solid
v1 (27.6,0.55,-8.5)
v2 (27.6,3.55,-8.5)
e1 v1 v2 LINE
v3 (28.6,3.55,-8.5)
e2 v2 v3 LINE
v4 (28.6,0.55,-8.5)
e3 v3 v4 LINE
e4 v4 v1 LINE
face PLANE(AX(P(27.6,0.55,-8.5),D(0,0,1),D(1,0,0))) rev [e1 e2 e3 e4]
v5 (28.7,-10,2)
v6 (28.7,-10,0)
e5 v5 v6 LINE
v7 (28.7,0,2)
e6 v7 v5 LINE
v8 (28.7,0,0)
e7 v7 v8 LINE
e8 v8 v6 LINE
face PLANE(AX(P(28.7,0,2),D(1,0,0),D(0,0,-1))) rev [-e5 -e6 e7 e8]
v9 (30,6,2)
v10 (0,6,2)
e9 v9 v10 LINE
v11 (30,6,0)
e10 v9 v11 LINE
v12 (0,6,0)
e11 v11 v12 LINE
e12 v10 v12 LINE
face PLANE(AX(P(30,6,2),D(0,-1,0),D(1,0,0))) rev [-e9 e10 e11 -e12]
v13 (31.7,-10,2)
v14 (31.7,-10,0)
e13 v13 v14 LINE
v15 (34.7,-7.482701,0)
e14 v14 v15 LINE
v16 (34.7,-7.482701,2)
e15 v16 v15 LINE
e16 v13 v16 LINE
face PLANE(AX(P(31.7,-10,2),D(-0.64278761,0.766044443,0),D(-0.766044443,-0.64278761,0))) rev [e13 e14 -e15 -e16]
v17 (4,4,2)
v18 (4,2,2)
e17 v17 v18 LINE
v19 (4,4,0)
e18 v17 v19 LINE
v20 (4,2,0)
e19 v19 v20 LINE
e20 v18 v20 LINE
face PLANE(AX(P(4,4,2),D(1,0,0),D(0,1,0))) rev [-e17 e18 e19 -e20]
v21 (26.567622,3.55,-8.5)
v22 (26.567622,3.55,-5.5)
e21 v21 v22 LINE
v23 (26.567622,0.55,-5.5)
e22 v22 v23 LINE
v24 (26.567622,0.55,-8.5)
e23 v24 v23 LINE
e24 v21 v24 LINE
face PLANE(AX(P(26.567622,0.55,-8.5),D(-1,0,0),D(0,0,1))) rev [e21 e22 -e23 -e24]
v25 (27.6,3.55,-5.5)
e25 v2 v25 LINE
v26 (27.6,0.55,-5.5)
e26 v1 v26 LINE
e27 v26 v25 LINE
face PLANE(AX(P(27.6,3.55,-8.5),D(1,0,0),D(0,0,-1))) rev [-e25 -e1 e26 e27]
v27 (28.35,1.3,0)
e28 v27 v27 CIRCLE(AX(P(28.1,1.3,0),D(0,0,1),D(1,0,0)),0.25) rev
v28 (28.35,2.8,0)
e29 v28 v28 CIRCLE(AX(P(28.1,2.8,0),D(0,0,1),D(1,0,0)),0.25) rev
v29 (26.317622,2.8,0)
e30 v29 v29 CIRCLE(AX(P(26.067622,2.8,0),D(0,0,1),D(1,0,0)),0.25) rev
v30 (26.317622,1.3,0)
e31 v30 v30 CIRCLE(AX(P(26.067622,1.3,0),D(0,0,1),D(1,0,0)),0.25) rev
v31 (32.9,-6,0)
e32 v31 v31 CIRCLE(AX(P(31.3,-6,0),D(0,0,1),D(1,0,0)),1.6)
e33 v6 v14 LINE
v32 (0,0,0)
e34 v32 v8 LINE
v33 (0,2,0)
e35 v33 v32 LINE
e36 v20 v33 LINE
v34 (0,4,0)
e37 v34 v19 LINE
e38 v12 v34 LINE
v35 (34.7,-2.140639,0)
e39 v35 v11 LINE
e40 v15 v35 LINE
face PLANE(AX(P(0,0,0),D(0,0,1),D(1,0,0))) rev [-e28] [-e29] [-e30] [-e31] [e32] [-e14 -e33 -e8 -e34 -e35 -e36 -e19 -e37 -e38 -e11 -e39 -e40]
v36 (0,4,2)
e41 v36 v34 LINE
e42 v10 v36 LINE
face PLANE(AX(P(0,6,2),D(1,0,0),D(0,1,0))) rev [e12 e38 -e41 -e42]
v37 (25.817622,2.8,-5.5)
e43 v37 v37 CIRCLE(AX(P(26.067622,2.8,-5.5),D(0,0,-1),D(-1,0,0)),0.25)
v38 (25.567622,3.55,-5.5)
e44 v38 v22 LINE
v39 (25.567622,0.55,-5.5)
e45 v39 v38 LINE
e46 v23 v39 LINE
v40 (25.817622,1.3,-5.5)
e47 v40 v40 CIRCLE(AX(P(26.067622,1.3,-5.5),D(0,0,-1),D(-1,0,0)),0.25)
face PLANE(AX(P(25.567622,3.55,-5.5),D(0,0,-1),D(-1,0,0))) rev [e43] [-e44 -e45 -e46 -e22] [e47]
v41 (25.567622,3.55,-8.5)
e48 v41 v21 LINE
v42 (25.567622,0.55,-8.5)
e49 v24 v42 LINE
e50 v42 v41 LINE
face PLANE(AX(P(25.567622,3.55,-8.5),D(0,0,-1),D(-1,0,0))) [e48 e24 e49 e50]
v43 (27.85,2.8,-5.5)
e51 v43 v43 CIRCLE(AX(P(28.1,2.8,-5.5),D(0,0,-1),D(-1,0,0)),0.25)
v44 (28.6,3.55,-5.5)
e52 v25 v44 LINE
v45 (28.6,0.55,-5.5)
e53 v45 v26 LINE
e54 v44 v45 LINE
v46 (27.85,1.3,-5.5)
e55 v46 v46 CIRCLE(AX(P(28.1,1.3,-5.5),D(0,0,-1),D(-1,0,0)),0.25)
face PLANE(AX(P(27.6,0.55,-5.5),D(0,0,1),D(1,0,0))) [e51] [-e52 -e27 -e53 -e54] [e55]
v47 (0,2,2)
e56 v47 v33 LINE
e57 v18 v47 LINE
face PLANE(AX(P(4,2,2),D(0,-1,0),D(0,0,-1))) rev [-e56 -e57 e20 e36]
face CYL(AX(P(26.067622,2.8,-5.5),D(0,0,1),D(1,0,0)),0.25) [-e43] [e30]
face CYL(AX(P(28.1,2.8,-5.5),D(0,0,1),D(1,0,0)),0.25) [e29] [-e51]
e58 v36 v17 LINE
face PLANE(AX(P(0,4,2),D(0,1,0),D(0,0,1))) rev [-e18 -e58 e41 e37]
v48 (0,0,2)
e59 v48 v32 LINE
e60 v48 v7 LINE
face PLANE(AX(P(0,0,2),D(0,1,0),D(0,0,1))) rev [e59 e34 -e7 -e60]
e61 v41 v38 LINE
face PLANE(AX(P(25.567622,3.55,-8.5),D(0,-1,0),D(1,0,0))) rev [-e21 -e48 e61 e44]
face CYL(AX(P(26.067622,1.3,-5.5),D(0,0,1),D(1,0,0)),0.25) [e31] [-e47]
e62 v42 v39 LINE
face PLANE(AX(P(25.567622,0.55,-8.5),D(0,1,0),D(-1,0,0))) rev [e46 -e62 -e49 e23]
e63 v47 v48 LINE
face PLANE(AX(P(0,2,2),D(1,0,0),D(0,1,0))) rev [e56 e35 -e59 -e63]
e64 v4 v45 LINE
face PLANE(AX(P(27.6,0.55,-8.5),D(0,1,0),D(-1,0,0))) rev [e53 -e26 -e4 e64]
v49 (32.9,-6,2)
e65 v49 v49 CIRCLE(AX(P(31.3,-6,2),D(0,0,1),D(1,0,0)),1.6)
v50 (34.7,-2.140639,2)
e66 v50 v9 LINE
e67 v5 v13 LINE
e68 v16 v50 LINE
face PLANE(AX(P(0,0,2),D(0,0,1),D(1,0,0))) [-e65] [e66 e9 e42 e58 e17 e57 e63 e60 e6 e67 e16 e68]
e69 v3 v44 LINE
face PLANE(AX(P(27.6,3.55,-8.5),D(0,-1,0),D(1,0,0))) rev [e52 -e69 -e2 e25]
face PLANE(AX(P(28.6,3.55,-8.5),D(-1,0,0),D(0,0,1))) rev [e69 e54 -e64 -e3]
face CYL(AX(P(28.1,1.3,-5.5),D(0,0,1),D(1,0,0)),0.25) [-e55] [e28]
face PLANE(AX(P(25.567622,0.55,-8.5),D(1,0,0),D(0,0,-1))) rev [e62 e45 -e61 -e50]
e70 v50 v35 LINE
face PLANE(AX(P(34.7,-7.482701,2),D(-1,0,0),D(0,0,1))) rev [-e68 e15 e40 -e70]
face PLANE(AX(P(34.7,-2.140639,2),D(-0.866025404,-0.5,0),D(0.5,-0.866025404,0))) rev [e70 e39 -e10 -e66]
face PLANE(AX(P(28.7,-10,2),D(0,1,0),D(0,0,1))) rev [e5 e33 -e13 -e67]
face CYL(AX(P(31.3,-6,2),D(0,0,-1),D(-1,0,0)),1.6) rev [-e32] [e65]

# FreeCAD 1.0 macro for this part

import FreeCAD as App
import Part
import Sketcher

V = App.Vector
Q = App.Units.Quantity

doc = App.newDocument("Part")
body = doc.addObject("PartDesign::Body", "Body")

# Sketch on XY plane
sketch1 = body.newObject("Sketcher::SketchObject", "Sketch")
sketch1.AttachmentSupport = (doc.getObject("XY_Plane"), [""])
sketch1.MapMode = "FlatFace"
sketch1.addGeometry(Part.LineSegment(V(0, 0, 0), V(28.7, 0, 0)), False)
sketch1.addGeometry(Part.LineSegment(V(28.7, 0, 0), V(28.7, -10, 0)), False)
sketch1.addGeometry(Part.LineSegment(V(28.7, -10, 0), V(31.7, -10, 0)), False)
sketch1.addGeometry(Part.LineSegment(V(31.7, -10, 0), V(34.7, -7.5, 0)), False)
sketch1.addGeometry(Part.LineSegment(V(34.7, -7.5, 0), V(34.7, -2.1, 0)), False)
sketch1.addGeometry(Part.LineSegment(V(34.7, -2.1, 0), V(30, 6, 0)), False)
sketch1.addGeometry(Part.LineSegment(V(30, 6, 0), V(0, 6, 0)), False)
sketch1.addGeometry(Part.LineSegment(V(0, 6, 0), V(0, 4, 0)), False)
sketch1.addGeometry(Part.LineSegment(V(0, 4, 0), V(4, 4, 0)), False)
sketch1.addGeometry(Part.LineSegment(V(4, 4, 0), V(4, 2, 0)), False)
sketch1.addGeometry(Part.LineSegment(V(4, 2, 0), V(0, 2, 0)), False)
sketch1.addGeometry(Part.LineSegment(V(0, 2, 0), V(0, 0, 0)), False)
sketch1.addGeometry(Part.Circle(V(31.3, -6, 0), V(0, 0, 1), 1.6), False)
sketch1.addConstraint(Sketcher.Constraint("Coincident", 0, 2, 1, 1))
sketch1.addConstraint(Sketcher.Constraint("Coincident", 1, 2, 2, 1))
sketch1.addConstraint(Sketcher.Constraint("Coincident", 2, 2, 3, 1))
sketch1.addConstraint(Sketcher.Constraint("Coincident", 3, 2, 4, 1))
sketch1.addConstraint(Sketcher.Constraint("Coincident", 4, 2, 5, 1))
sketch1.addConstraint(Sketcher.Constraint("Coincident", 5, 2, 6, 1))
sketch1.addConstraint(Sketcher.Constraint("Coincident", 6, 2, 7, 1))
sketch1.addConstraint(Sketcher.Constraint("Coincident", 7, 2, 8, 1))
sketch1.addConstraint(Sketcher.Constraint("Coincident", 8, 2, 9, 1))
sketch1.addConstraint(Sketcher.Constraint("Coincident", 9, 2, 10, 1))
sketch1.addConstraint(Sketcher.Constraint("Coincident", 10, 2, 11, 1))
sketch1.addConstraint(Sketcher.Constraint("Coincident", 11, 2, 0, 1))
sketch1.addConstraint(Sketcher.Constraint("Horizontal", 0))
sketch1.addConstraint(Sketcher.Constraint("Vertical", 1))
sketch1.addConstraint(Sketcher.Constraint("Horizontal", 2))
sketch1.addConstraint(Sketcher.Constraint("Vertical", 4))
sketch1.addConstraint(Sketcher.Constraint("Horizontal", 6))
sketch1.addConstraint(Sketcher.Constraint("Vertical", 7))
sketch1.addConstraint(Sketcher.Constraint("Horizontal", 8))
sketch1.addConstraint(Sketcher.Constraint("Vertical", 9))
sketch1.addConstraint(Sketcher.Constraint("Horizontal", 10))
sketch1.addConstraint(Sketcher.Constraint("Vertical", 11))
sketch1.addConstraint(Sketcher.Constraint("Coincident", 11, 2, -1, 1))
sketch1.addConstraint(Sketcher.Constraint("PointOnObject", 6, 2, -2))
sketch1.addConstraint(Sketcher.Constraint("Equal", 7, 9))
sketch1.addConstraint(Sketcher.Constraint("Equal", 9, 11))
sketch1.addConstraint(Sketcher.Constraint("Diameter", 12, Q("3.2 mm")))
sketch1.addConstraint(Sketcher.Constraint("DistanceX", 2, 1, 2, 2, Q("3 mm")))
sketch1.addConstraint(Sketcher.Constraint("DistanceX", 6, 2, 6, 1, Q("30 mm")))
sketch1.addConstraint(Sketcher.Constraint("DistanceX", 8, 1, 8, 2, Q("4 mm")))
sketch1.addConstraint(Sketcher.Constraint("DistanceY", 1, 2, 1, 1, Q("10 mm")))
sketch1.addConstraint(Sketcher.Constraint("DistanceY", 7, 2, 7, 1, Q("2 mm")))
sketch1.addConstraint(Sketcher.Constraint("Angle", 3, Q("40 deg")))
sketch1.addConstraint(Sketcher.Constraint("Angle", 5, Q("120 deg")))
sketch1.addConstraint(Sketcher.Constraint("DistanceX", 0, 1, 0, 2, Q("28.7 mm")))
sketch1.addConstraint(Sketcher.Constraint("DistanceY", 12, 3, -1, 1, Q("6 mm")))
sketch1.addConstraint(Sketcher.Constraint("DistanceX", 2, 2, 3, 2, Q("3 mm")))
sketch1.addConstraint(Sketcher.Constraint("DistanceX", -1, 1, 12, 3, Q("31.3 mm")))
pad1 = body.newObject("PartDesign::Pad", "Pad")
pad1.Profile = sketch1
pad1.Length = 2

# Sketch on XY plane
sketch2 = body.newObject("Sketcher::SketchObject", "Sketch001")
sketch2.AttachmentSupport = (doc.getObject("XY_Plane"), [""])
sketch2.MapMode = "FlatFace"
sketch2.addGeometry(Part.Circle(V(28.1, 1.3, 0), V(0, 0, 1), 0.25), False)
sketch2.addGeometry(Part.Circle(V(28.1, 2.8, 0), V(0, 0, 1), 0.25), False)
sketch2.addGeometry(Part.Circle(V(26.07, 1.3, 0), V(0, 0, 1), 0.25), False)
sketch2.addGeometry(Part.Circle(V(26.07, 2.8, 0), V(0, 0, 1), 0.25), False)
sketch2.addConstraint(Sketcher.Constraint("Equal", 0, 1))
sketch2.addConstraint(Sketcher.Constraint("Equal", 1, 2))
sketch2.addConstraint(Sketcher.Constraint("Equal", 2, 3))
sketch2.addConstraint(Sketcher.Constraint("Horizontal", 0, 3, 2, 3))
sketch2.addConstraint(Sketcher.Constraint("Horizontal", 1, 3, 3, 3))
sketch2.addConstraint(Sketcher.Constraint("Vertical", 0, 3, 1, 3))
sketch2.addConstraint(Sketcher.Constraint("Vertical", 2, 3, 3, 3))
sketch2.addConstraint(Sketcher.Constraint("Diameter", 0, Q("0.5 mm")))
sketch2.addConstraint(Sketcher.Constraint("DistanceX", -1, 1, 0, 3, Q("28.1 mm")))
sketch2.addConstraint(Sketcher.Constraint("DistanceY", -1, 1, 0, 3, Q("1.3 mm")))
sketch2.addConstraint(Sketcher.Constraint("DistanceY", -1, 1, 1, 3, Q("2.8 mm")))
sketch2.addConstraint(Sketcher.Constraint("DistanceX", -1, 1, 2, 3, Q("26.067622 mm")))
pad2 = body.newObject("PartDesign::Pad", "Pad001")
pad2.Profile = sketch2
pad2.Length = 5.5
pad2.Reversed = True

# Sketch on XY plane
sketch3 = body.newObject("Sketcher::SketchObject", "Sketch002")
sketch3.AttachmentSupport = (doc.getObject("XY_Plane"), [""])
sketch3.MapMode = "FlatFace"
sketch3.AttachmentOffset = App.Placement(V(0, 0, -5.5), App.Rotation())
sketch3.addGeometry(Part.LineSegment(V(28.6, 3.5, 0), V(28.6, 0.6, 0)), False)
sketch3.addGeometry(Part.LineSegment(V(28.6, 0.6, 0), V(27.6, 0.6, 0)), False)
sketch3.addGeometry(Part.LineSegment(V(27.6, 0.6, 0), V(27.6, 3.5, 0)), False)
sketch3.addGeometry(Part.LineSegment(V(27.6, 3.5, 0), V(28.6, 3.5, 0)), False)
sketch3.addGeometry(Part.LineSegment(V(26.6, 3.5, 0), V(26.6, 0.6, 0)), False)
sketch3.addGeometry(Part.LineSegment(V(26.6, 0.6, 0), V(25.6, 0.6, 0)), False)
sketch3.addGeometry(Part.LineSegment(V(25.6, 0.6, 0), V(25.6, 3.5, 0)), False)
sketch3.addGeometry(Part.LineSegment(V(25.6, 3.5, 0), V(26.6, 3.5, 0)), False)
sketch3.addConstraint(Sketcher.Constraint("Coincident", 0, 2, 1, 1))
sketch3.addConstraint(Sketcher.Constraint("Coincident", 1, 2, 2, 1))
sketch3.addConstraint(Sketcher.Constraint("Coincident", 2, 2, 3, 1))
sketch3.addConstraint(Sketcher.Constraint("Coincident", 3, 2, 0, 1))
sketch3.addConstraint(Sketcher.Constraint("Coincident", 4, 2, 5, 1))
sketch3.addConstraint(Sketcher.Constraint("Coincident", 5, 2, 6, 1))
sketch3.addConstraint(Sketcher.Constraint("Coincident", 6, 2, 7, 1))
sketch3.addConstraint(Sketcher.Constraint("Coincident", 7, 2, 4, 1))
sketch3.addConstraint(Sketcher.Constraint("Vertical", 0))
sketch3.addConstraint(Sketcher.Constraint("Horizontal", 1))
sketch3.addConstraint(Sketcher.Constraint("Vertical", 2))
sketch3.addConstraint(Sketcher.Constraint("Horizontal", 3))
sketch3.addConstraint(Sketcher.Constraint("Vertical", 4))
sketch3.addConstraint(Sketcher.Constraint("Horizontal", 5))
sketch3.addConstraint(Sketcher.Constraint("Vertical", 6))
sketch3.addConstraint(Sketcher.Constraint("Horizontal", 7))
sketch3.addConstraint(Sketcher.Constraint("Horizontal", 1, 2, 4, 2))
sketch3.addConstraint(Sketcher.Constraint("Horizontal", 3, 2, 6, 2))
sketch3.addConstraint(Sketcher.Constraint("Equal", 3, 5))
sketch3.addConstraint(Sketcher.Constraint("DistanceX", 1, 2, 1, 1, Q("1 mm")))
sketch3.addConstraint(Sketcher.Constraint("DistanceY", 0, 2, 0, 1, Q("3 mm")))
sketch3.addConstraint(Sketcher.Constraint("DistanceX", -1, 1, 0, 2, Q("28.6 mm")))
sketch3.addConstraint(Sketcher.Constraint("DistanceY", -1, 1, 0, 2, Q("0.55 mm")))
sketch3.addConstraint(Sketcher.Constraint("DistanceX", -1, 1, 4, 2, Q("26.567622 mm")))
pad3 = body.newObject("PartDesign::Pad", "Pad002")
pad3.Profile = sketch3
pad3.Length = 3
pad3.Reversed = True

doc.recompute()
